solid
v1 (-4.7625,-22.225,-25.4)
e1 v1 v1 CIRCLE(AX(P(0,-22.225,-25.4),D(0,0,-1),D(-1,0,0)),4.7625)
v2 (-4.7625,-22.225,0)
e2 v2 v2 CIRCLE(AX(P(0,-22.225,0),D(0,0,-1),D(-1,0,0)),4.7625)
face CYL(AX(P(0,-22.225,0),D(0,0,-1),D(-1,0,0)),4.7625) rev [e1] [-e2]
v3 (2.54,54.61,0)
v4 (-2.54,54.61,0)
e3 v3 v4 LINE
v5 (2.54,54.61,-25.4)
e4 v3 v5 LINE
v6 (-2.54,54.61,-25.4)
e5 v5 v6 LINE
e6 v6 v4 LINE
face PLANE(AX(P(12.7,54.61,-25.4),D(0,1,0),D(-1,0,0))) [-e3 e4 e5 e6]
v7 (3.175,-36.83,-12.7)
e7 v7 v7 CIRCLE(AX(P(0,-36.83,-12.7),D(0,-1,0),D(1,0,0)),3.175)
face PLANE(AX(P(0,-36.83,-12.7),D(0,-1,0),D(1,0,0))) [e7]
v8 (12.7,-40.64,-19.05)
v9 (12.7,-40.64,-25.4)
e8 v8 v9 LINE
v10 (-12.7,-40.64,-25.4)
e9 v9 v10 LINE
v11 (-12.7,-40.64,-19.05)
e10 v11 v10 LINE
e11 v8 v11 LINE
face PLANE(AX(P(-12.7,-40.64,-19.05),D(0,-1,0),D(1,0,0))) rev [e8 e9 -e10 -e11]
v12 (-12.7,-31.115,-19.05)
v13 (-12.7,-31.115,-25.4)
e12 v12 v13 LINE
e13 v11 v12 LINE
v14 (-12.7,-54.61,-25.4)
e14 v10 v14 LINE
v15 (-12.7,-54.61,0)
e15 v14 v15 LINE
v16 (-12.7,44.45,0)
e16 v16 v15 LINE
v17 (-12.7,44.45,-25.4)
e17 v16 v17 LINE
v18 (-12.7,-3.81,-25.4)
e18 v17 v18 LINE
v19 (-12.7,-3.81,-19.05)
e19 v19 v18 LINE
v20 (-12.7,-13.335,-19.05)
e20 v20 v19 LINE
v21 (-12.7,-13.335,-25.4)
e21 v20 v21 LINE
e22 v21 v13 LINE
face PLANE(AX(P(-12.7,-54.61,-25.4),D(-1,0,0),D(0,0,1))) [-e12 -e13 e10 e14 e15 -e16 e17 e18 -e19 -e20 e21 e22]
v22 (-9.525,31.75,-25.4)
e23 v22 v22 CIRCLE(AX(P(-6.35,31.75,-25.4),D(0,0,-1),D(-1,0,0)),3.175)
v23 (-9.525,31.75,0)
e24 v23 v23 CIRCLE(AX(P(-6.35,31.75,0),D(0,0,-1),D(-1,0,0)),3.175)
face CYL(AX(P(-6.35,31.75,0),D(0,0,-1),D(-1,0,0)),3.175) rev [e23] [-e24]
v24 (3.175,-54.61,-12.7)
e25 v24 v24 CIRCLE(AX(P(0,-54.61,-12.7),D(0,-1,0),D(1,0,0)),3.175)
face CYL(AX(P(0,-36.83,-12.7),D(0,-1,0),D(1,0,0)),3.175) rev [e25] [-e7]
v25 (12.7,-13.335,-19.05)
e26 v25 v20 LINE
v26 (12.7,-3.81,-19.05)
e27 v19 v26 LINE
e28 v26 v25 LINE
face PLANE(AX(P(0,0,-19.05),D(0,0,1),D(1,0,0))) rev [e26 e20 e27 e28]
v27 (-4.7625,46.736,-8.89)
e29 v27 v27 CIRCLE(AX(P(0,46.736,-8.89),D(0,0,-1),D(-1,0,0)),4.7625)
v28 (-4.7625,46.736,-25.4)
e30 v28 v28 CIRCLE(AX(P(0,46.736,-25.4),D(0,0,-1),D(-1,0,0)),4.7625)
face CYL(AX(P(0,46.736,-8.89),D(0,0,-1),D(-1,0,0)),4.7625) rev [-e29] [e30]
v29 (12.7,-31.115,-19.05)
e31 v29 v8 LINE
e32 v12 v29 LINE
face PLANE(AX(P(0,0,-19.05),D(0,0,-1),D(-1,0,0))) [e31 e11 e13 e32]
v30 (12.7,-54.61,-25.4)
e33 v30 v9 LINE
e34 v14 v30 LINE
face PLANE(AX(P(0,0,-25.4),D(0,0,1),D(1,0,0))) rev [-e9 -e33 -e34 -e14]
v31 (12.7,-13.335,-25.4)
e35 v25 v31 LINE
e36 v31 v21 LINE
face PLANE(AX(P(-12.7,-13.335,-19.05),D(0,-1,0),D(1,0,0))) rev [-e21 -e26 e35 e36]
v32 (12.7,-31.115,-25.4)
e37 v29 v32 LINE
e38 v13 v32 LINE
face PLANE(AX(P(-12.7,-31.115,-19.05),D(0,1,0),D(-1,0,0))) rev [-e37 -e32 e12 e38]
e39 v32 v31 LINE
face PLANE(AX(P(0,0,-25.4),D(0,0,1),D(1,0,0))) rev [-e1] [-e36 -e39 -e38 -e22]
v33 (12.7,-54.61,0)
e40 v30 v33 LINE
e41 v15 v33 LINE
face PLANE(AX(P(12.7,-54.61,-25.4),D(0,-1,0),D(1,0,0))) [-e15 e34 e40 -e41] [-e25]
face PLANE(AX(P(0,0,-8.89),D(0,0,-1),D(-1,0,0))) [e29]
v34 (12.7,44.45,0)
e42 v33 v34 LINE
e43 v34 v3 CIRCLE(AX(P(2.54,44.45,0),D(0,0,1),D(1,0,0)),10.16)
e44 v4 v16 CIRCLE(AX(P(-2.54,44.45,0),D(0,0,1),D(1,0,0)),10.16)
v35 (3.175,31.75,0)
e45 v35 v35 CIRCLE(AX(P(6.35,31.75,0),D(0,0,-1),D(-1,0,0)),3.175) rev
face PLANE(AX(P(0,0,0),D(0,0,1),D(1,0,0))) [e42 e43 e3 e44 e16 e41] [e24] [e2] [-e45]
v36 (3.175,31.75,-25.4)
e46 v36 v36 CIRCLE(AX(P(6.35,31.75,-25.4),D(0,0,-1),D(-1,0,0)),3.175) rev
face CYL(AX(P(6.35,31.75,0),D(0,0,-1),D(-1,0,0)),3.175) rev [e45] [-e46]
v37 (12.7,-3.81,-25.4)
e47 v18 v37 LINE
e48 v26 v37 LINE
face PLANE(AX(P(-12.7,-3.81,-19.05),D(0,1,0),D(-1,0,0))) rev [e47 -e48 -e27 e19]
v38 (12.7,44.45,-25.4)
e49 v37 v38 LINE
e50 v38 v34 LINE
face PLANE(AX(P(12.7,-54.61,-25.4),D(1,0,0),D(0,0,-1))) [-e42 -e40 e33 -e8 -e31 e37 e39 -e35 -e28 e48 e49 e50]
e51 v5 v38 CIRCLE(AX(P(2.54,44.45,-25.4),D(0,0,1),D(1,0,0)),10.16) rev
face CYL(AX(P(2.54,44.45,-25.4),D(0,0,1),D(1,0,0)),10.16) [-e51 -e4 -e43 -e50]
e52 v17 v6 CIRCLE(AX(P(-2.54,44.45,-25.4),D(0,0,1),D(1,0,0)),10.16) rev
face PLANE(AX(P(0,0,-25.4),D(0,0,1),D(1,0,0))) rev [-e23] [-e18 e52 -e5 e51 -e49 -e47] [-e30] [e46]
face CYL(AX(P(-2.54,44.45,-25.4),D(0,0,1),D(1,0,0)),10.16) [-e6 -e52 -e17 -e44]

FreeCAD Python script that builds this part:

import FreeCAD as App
import Part
import Sketcher
from FreeCAD import Vector
Q = App.Units.Quantity


def edges_at(feature, points):
    """Names of the edges that pass closest to the given points."""
    edges = feature.Shape.Edges
    near = lambda p: min(range(len(edges)), key=lambda i: edges[i].distToShape(Part.Vertex(*p))[0])
    return sorted({f"Edge{near(p) + 1}" for p in points})

doc = App.newDocument("Part")
body = doc.addObject("PartDesign::Body", "Body")

sketch1 = doc.addObject("Sketcher::SketchObject", "Sketch")
body.addObject(sketch1)
sketch1.AttachmentSupport = (doc.XY_Plane, [""])
sketch1.MapMode = "FlatFace"
sketch1.addGeometry([
    Part.LineSegment(Vector(-13, 55, 0), Vector(-13, -55, 0)),
    Part.LineSegment(Vector(-13, -55, 0), Vector(13, -55, 0)),
    Part.LineSegment(Vector(13, -55, 0), Vector(13, 55, 0)),
    Part.LineSegment(Vector(13, 55, 0), Vector(-13, 55, 0)),
], False)
sketch1.addConstraint([
    Sketcher.Constraint("Coincident", 0, 2, 1, 1),
    Sketcher.Constraint("Coincident", 1, 2, 2, 1),
    Sketcher.Constraint("Coincident", 2, 2, 3, 1),
    Sketcher.Constraint("Coincident", 3, 2, 0, 1),
    Sketcher.Constraint("Vertical", 0),
    Sketcher.Constraint("Horizontal", 1),
    Sketcher.Constraint("Vertical", 2),
    Sketcher.Constraint("Horizontal", 3),
    Sketcher.Constraint("Symmetric", 0, 2, 2, 2, -1, 1),
    Sketcher.Constraint("DistanceX", 1, 1, 1, 2, Q("1 in")),
    Sketcher.Constraint("DistanceY", 0, 2, 0, 1, Q("4.3 in")),
])
pad1 = doc.addObject("PartDesign::Pad", "Pad")
body.addObject(pad1)
pad1.Profile = sketch1
pad1.Length = Q("1 in")
pad1.Reversed = True
doc.recompute()

fillet = doc.addObject("PartDesign::Fillet", "Fillet")
body.addObject(fillet)
fillet.Base = (pad1, edges_at(pad1, [(-12.7, 54.61, -12.7), (12.7, 54.61, -12.7)]))
fillet.Radius = Q("0.4 in")

sketch2 = doc.addObject("Sketcher::SketchObject", "Sketch001")
body.addObject(sketch2)
sketch2.AttachmentSupport = (doc.XZ_Plane, [""])
sketch2.MapMode = "FlatFace"
sketch2.AttachmentOffset = App.Placement(Vector(0, 0, 2.15 * 25.4), App.Rotation())
sketch2.addGeometry(Part.Circle(Vector(0, -12.7, 0), Vector(0, 0, 1), 3.2), False)
sketch2.addConstraint([
    Sketcher.Constraint("PointOnObject", 0, 3, -2),
    Sketcher.Constraint("Diameter", 0, Q("0.25 in")),
    Sketcher.Constraint("DistanceY", 0, 3, -1, 1, Q("0.5 in")),
])
pocket1 = doc.addObject("PartDesign::Pocket", "Pocket")
body.addObject(pocket1)
pocket1.Profile = sketch2
pocket1.Length = Q("0.7 in")

sketch3 = doc.addObject("Sketcher::SketchObject", "Sketch002")
body.addObject(sketch3)
sketch3.AttachmentSupport = (doc.XY_Plane, [""])
sketch3.MapMode = "FlatFace"
sketch3.AttachmentOffset = App.Placement(Vector(0, 0, -1 * 25.4), App.Rotation())
sketch3.addGeometry([
    Part.Circle(Vector(-6.3, 31.8, 0), Vector(0, 0, 1), 3.2),
    Part.Circle(Vector(6.3, 31.8, 0), Vector(0, 0, 1), 3.2),
    Part.Circle(Vector(0, -22.2, 0), Vector(0, 0, 1), 4.8),
], False)
sketch3.addConstraint([
    Sketcher.Constraint("Equal", 0, 1),
    Sketcher.Constraint("Symmetric", 0, 3, 1, 3, -2),
    Sketcher.Constraint("PointOnObject", 2, 3, -2),
    Sketcher.Constraint("Diameter", 0, Q("0.25 in")),
    Sketcher.Constraint("Diameter", 2, Q("0.375 in")),
    Sketcher.Constraint("DistanceX", 0, 3, 1, 3, Q("0.5 in")),
    Sketcher.Constraint("DistanceY", -1, 1, 0, 3, Q("1.25 in")),
    Sketcher.Constraint("DistanceY", 2, 3, -1, 1, Q("0.875 in")),
])
pocket2 = doc.addObject("PartDesign::Pocket", "Pocket001")
body.addObject(pocket2)
pocket2.Profile = sketch3
pocket2.Type = "ThroughAll"
pocket2.Reversed = True

sketch4 = doc.addObject("Sketcher::SketchObject", "Sketch003")
body.addObject(sketch4)
sketch4.AttachmentSupport = (doc.XY_Plane, [""])
sketch4.MapMode = "FlatFace"
sketch4.AttachmentOffset = App.Placement(Vector(0, 0, -1 * 25.4), App.Rotation())
sketch4.addGeometry([
    Part.Circle(Vector(0, 46.7, 0), Vector(0, 0, 1), 4.8),
    Part.Circle(Vector(-6.3, 31.8, 0), Vector(0, 0, 1), 3.2),
    Part.Circle(Vector(6.3, 31.8, 0), Vector(0, 0, 1), 3.2),
    Part.Circle(Vector(0, -22.2, 0), Vector(0, 0, 1), 4.8),
], False)
sketch4.addConstraint([
    Sketcher.Constraint("Equal", 1, 2),
    Sketcher.Constraint("Equal", 0, 3),
    Sketcher.Constraint("Symmetric", 1, 3, 2, 3, -2),
    Sketcher.Constraint("PointOnObject", 0, 3, -2),
    Sketcher.Constraint("PointOnObject", 3, 3, -2),
    Sketcher.Constraint("Diameter", 1, Q("0.25 in")),
    Sketcher.Constraint("Diameter", 0, Q("0.375 in")),
    Sketcher.Constraint("DistanceX", 1, 3, 2, 3, Q("0.5 in")),
    Sketcher.Constraint("DistanceY", -1, 1, 0, 3, Q("1.84 in")),
    Sketcher.Constraint("DistanceY", -1, 1, 1, 3, Q("1.25 in")),
    Sketcher.Constraint("DistanceY", 3, 3, -1, 1, Q("0.875 in")),
])
pocket3 = doc.addObject("PartDesign::Pocket", "Pocket002")
body.addObject(pocket3)
pocket3.Profile = sketch4
pocket3.Length = Q("0.65 in")
pocket3.Reversed = True

sketch5 = doc.addObject("Sketcher::SketchObject", "Sketch004")
body.addObject(sketch5)
sketch5.AttachmentSupport = (doc.XY_Plane, [""])
sketch5.MapMode = "FlatFace"
sketch5.AttachmentOffset = App.Placement(Vector(0, 0, -1 * 25.4), App.Rotation())
sketch5.addGeometry([
    Part.LineSegment(Vector(13, -4, 0), Vector(13, -13, 0)),
    Part.LineSegment(Vector(13, -13, 0), Vector(-13, -13, 0)),
    Part.LineSegment(Vector(-13, -13, 0), Vector(-13, -4, 0)),
    Part.LineSegment(Vector(-13, -4, 0), Vector(13, -4, 0)),
    Part.LineSegment(Vector(13, -31, 0), Vector(13, -41, 0)),
    Part.LineSegment(Vector(13, -41, 0), Vector(-13, -41, 0)),
    Part.LineSegment(Vector(-13, -41, 0), Vector(-13, -31, 0)),
    Part.LineSegment(Vector(-13, -31, 0), Vector(13, -31, 0)),
], False)
sketch5.addConstraint([
    Sketcher.Constraint("Coincident", 0, 2, 1, 1),
    Sketcher.Constraint("Coincident", 1, 2, 2, 1),
    Sketcher.Constraint("Coincident", 2, 2, 3, 1),
    Sketcher.Constraint("Coincident", 3, 2, 0, 1),
    Sketcher.Constraint("Coincident", 4, 2, 5, 1),
    Sketcher.Constraint("Coincident", 5, 2, 6, 1),
    Sketcher.Constraint("Coincident", 6, 2, 7, 1),
    Sketcher.Constraint("Coincident", 7, 2, 4, 1),
    Sketcher.Constraint("Vertical", 0),
    Sketcher.Constraint("Horizontal", 1),
    Sketcher.Constraint("Vertical", 2),
    Sketcher.Constraint("Horizontal", 3),
    Sketcher.Constraint("Vertical", 4),
    Sketcher.Constraint("Horizontal", 5),
    Sketcher.Constraint("Vertical", 6),
    Sketcher.Constraint("Horizontal", 7),
    Sketcher.Constraint("Vertical", 3, 2, 4, 2),
    Sketcher.Constraint("Vertical", 2, 2, 5, 2),
    Sketcher.Constraint("Equal", 2, 4),
    Sketcher.Constraint("DistanceX", 1, 2, 1, 1, Q("1 in")),
    Sketcher.Constraint("DistanceX", -1, 1, 0, 2, Q("0.5 in")),
    Sketcher.Constraint("DistanceY", 4, 2, -1, 1, Q("1.6 in")),
    Sketcher.Constraint("DistanceY", 6, 2, 1, 2, Q("0.7 in")),
    Sketcher.Constraint("DistanceY", 0, 2, 0, 1, Q("0.375 in")),
])
pocket4 = doc.addObject("PartDesign::Pocket", "Pocket003")
body.addObject(pocket4)
pocket4.Profile = sketch5
pocket4.Length = Q("0.25 in")
pocket4.Reversed = True

doc.recompute()
